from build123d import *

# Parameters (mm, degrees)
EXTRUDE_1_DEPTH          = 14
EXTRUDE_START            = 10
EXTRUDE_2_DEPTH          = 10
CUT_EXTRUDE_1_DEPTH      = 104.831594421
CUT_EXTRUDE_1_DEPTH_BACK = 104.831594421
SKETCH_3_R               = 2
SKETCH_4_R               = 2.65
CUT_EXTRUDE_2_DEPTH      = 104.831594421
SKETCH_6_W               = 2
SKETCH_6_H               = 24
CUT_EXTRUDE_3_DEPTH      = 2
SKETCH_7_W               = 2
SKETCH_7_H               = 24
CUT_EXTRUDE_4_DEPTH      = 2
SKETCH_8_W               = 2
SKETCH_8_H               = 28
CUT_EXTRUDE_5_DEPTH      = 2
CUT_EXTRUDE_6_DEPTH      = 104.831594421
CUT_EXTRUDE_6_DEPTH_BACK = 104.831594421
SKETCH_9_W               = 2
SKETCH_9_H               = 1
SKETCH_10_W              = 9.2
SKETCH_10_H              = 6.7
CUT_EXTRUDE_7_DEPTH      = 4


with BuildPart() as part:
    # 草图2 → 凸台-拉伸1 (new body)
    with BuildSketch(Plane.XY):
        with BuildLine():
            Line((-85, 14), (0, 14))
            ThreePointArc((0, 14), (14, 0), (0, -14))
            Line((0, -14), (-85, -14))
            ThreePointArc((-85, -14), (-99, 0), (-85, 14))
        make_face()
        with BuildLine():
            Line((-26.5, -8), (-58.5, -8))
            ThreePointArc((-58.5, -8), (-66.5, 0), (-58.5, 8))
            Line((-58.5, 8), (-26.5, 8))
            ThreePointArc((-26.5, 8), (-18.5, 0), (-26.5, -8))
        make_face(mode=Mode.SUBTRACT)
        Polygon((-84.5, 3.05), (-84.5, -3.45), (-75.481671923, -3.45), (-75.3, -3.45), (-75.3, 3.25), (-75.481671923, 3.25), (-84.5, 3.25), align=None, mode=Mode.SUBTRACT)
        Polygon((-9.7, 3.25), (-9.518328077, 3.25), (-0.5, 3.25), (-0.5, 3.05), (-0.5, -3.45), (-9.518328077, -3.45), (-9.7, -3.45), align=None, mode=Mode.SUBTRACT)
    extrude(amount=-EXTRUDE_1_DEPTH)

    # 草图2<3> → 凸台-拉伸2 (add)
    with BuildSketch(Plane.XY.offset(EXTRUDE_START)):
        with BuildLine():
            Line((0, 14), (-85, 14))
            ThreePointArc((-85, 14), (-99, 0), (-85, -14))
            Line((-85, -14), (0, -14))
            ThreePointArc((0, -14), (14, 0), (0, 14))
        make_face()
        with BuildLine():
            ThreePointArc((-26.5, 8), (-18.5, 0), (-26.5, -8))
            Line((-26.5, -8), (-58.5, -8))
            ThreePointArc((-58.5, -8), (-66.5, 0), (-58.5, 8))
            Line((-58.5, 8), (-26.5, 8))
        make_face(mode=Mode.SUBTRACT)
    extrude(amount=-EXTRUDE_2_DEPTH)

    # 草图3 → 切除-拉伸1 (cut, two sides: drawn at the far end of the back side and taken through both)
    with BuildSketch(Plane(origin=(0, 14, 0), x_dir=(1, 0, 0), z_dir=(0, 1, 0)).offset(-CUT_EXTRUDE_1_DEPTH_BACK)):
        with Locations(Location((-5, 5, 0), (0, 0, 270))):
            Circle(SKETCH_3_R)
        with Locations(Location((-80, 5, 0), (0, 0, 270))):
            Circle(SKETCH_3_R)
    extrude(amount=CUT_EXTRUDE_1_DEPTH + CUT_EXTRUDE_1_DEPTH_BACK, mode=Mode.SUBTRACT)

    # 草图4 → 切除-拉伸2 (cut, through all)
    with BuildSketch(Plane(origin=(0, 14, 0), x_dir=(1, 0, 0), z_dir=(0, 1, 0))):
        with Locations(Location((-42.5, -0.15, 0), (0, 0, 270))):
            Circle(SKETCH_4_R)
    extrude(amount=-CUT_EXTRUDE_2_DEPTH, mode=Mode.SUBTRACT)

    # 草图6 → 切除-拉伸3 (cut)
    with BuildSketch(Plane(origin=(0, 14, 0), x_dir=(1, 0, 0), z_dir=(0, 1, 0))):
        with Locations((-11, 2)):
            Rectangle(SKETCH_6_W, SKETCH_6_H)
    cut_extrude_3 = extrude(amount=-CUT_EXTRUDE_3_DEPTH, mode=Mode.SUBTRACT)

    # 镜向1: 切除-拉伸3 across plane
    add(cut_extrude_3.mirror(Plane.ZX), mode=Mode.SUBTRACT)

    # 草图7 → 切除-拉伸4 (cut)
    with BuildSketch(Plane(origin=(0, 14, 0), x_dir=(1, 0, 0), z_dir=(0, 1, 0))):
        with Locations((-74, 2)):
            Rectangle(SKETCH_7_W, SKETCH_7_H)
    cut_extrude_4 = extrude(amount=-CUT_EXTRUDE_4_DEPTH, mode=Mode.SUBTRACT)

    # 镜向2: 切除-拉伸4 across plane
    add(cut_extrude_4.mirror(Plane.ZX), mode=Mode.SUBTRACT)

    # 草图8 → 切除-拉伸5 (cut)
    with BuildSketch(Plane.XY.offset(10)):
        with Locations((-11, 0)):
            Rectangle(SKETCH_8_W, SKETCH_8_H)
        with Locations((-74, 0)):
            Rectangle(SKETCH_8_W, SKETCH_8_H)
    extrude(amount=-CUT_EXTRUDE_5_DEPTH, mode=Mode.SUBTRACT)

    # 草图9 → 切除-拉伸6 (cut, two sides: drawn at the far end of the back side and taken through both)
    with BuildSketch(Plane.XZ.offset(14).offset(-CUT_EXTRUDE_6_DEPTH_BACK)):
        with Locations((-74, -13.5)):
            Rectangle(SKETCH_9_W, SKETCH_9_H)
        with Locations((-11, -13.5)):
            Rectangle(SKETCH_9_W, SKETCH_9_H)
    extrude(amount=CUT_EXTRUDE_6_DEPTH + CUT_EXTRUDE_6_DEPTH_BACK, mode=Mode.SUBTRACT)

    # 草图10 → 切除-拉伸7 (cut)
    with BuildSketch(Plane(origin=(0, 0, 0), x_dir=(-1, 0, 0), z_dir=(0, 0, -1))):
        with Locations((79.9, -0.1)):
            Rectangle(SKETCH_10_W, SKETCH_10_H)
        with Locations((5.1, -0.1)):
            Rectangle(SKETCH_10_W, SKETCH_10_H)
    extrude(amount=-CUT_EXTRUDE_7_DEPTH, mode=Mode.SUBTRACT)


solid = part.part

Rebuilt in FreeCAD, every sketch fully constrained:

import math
import FreeCAD as App
import Part
import Sketcher

doc = App.newDocument("Part")
body = doc.addObject("PartDesign::Body", "Body")

sketch1 = body.newObject("Sketcher::SketchObject", "Sketch")
sketch1.AttachmentSupport = (doc.getObject("XY_Plane"), [""])
sketch1.MapMode = "FlatFace"
sketch1.addGeometry([
    Part.LineSegment(App.Vector(0, 14, 0), App.Vector(-85, 14, 0)),
    Part.ArcOfCircle(Part.Circle(App.Vector(-85, 0, 0), App.Vector(0, 0, 1), 14), math.radians(90), math.radians(270)),
    Part.LineSegment(App.Vector(-85, -14, 0), App.Vector(0, -14, 0)),
    Part.ArcOfCircle(Part.Circle(App.Vector(0, 0, 0), App.Vector(0, 0, 1), 14), math.radians(-90), math.radians(90)),
    Part.LineSegment(App.Vector(-10, 3, 0), App.Vector(0, 3, 0)),
    Part.LineSegment(App.Vector(0, 3, 0), App.Vector(0, -3, 0)),
    Part.LineSegment(App.Vector(0, -3, 0), App.Vector(-10, -3, 0)),
    Part.LineSegment(App.Vector(-10, -3, 0), App.Vector(-10, 3, 0)),
    Part.LineSegment(App.Vector(-84, 3, 0), App.Vector(-75, 3, 0)),
    Part.LineSegment(App.Vector(-75, 3, 0), App.Vector(-75, -3, 0)),
    Part.LineSegment(App.Vector(-75, -3, 0), App.Vector(-84, -3, 0)),
    Part.LineSegment(App.Vector(-84, -3, 0), App.Vector(-84, 3, 0)),
    Part.LineSegment(App.Vector(-26, -8, 0), App.Vector(-58, -8, 0)),
    Part.ArcOfCircle(Part.Circle(App.Vector(-58, 0, 0), App.Vector(0, 0, 1), 8), math.radians(90), math.radians(270)),
    Part.LineSegment(App.Vector(-58, 8, 0), App.Vector(-26, 8, 0)),
    Part.ArcOfCircle(Part.Circle(App.Vector(-26, 0, 0), App.Vector(0, 0, 1), 8), math.radians(-90), math.radians(90)),
], False)
sketch1.addConstraint([
    Sketcher.Constraint("Tangent", 0, 2, 1, 1),
    Sketcher.Constraint("Tangent", 1, 2, 2, 1),
    Sketcher.Constraint("Tangent", 2, 2, 3, 1),
    Sketcher.Constraint("Tangent", 3, 2, 0, 1),
    Sketcher.Constraint("Coincident", 4, 2, 5, 1),
    Sketcher.Constraint("Coincident", 5, 2, 6, 1),
    Sketcher.Constraint("Coincident", 6, 2, 7, 1),
    Sketcher.Constraint("Coincident", 7, 2, 4, 1),
    Sketcher.Constraint("Coincident", 8, 2, 9, 1),
    Sketcher.Constraint("Coincident", 9, 2, 10, 1),
    Sketcher.Constraint("Coincident", 10, 2, 11, 1),
    Sketcher.Constraint("Coincident", 11, 2, 8, 1),
    Sketcher.Constraint("Tangent", 12, 2, 13, 2),
    Sketcher.Constraint("Tangent", 13, 1, 14, 1),
    Sketcher.Constraint("Tangent", 14, 2, 15, 2),
    Sketcher.Constraint("Tangent", 15, 1, 12, 1),
    Sketcher.Constraint("Horizontal", 0),
    Sketcher.Constraint("Horizontal", 2),
    Sketcher.Constraint("Horizontal", 4),
    Sketcher.Constraint("Vertical", 5),
    Sketcher.Constraint("Horizontal", 6),
    Sketcher.Constraint("Vertical", 7),
    Sketcher.Constraint("Horizontal", 8),
    Sketcher.Constraint("Vertical", 9),
    Sketcher.Constraint("Horizontal", 10),
    Sketcher.Constraint("Vertical", 11),
    Sketcher.Constraint("Horizontal", 12),
    Sketcher.Constraint("Horizontal", 14),
    Sketcher.Constraint("Coincident", 3, 3, -1, 1),
    Sketcher.Constraint("PointOnObject", 13, 3, -1),
    Sketcher.Constraint("Horizontal", 7, 2, 8, 2),
    Sketcher.Constraint("Horizontal", 6, 2, 9, 2),
    Sketcher.Constraint("Equal", 6, 8),
    Sketcher.Constraint("Radius", 1, 14.0),
    Sketcher.Constraint("Radius", 13, 8.0),
    Sketcher.Constraint("DistanceX", 0, 2, 0, 1, 85.0),
    Sketcher.Constraint("DistanceX", 12, 2, 12, 1, 32.0),
    Sketcher.Constraint("DistanceX", 4, 1, 4, 2, 9.2),
    Sketcher.Constraint("DistanceY", 5, 2, 5, 1, 6.7),
    Sketcher.Constraint("DistanceX", 15, 3, 4, 2, 26.0),
    Sketcher.Constraint("DistanceX", 10, 2, 12, 2, 26.0),
    Sketcher.Constraint("DistanceX", 13, 3, -1, 1, 58.5),
    Sketcher.Constraint("DistanceY", -1, 1, 4, 2, 3.25),
])
pad1 = body.newObject("PartDesign::Pad", "Pad")
pad1.Profile = sketch1
pad1.Length = 14
pad1.Reversed = True

sketch2 = body.newObject("Sketcher::SketchObject", "Sketch001")
sketch2.AttachmentSupport = (doc.getObject("XY_Plane"), [""])
sketch2.MapMode = "FlatFace"
sketch2.AttachmentOffset = App.Placement(App.Vector(0, 0, 10), App.Rotation())
sketch2.addGeometry([
    Part.LineSegment(App.Vector(0, 14, 0), App.Vector(-85, 14, 0)),
    Part.ArcOfCircle(Part.Circle(App.Vector(-85, 0, 0), App.Vector(0, 0, 1), 14), math.radians(90), math.radians(270)),
    Part.LineSegment(App.Vector(-85, -14, 0), App.Vector(0, -14, 0)),
    Part.ArcOfCircle(Part.Circle(App.Vector(0, 0, 0), App.Vector(0, 0, 1), 14), math.radians(-90), math.radians(90)),
    Part.LineSegment(App.Vector(-58, 8, 0), App.Vector(-26, 8, 0)),
    Part.ArcOfCircle(Part.Circle(App.Vector(-26, 0, 0), App.Vector(0, 0, 1), 8), math.radians(-90), math.radians(90)),
    Part.LineSegment(App.Vector(-26, -8, 0), App.Vector(-58, -8, 0)),
    Part.ArcOfCircle(Part.Circle(App.Vector(-58, 0, 0), App.Vector(0, 0, 1), 8), math.radians(90), math.radians(270)),
], False)
sketch2.addConstraint([
    Sketcher.Constraint("Tangent", 0, 2, 1, 1),
    Sketcher.Constraint("Tangent", 1, 2, 2, 1),
    Sketcher.Constraint("Tangent", 2, 2, 3, 1),
    Sketcher.Constraint("Tangent", 3, 2, 0, 1),
    Sketcher.Constraint("Tangent", 4, 2, 5, 2),
    Sketcher.Constraint("Tangent", 5, 1, 6, 1),
    Sketcher.Constraint("Tangent", 6, 2, 7, 2),
    Sketcher.Constraint("Tangent", 7, 1, 4, 1),
    Sketcher.Constraint("Horizontal", 0),
    Sketcher.Constraint("Horizontal", 2),
    Sketcher.Constraint("Horizontal", 4),
    Sketcher.Constraint("Horizontal", 6),
    Sketcher.Constraint("Coincident", 3, 3, -1, 1),
    Sketcher.Constraint("PointOnObject", 5, 3, -1),
    Sketcher.Constraint("Radius", 1, 14.0),
    Sketcher.Constraint("Radius", 5, 8.0),
    Sketcher.Constraint("DistanceX", 0, 2, 0, 1, 85.0),
    Sketcher.Constraint("DistanceX", 4, 1, 4, 2, 32.0),
    Sketcher.Constraint("DistanceX", 5, 3, -1, 1, 26.5),
])
pad2 = body.newObject("PartDesign::Pad", "Pad001")
pad2.Profile = sketch2
pad2.Length = 10
pad2.Reversed = True

sketch3 = body.newObject("Sketcher::SketchObject", "Sketch002")
sketch3.AttachmentSupport = (doc.getObject("XZ_Plane"), [""])
sketch3.MapMode = "FlatFace"
sketch3.AttachmentOffset = App.Placement(App.Vector(0, 0, -14), App.Rotation())
sketch3.addGeometry([
    Part.Circle(App.Vector(-5, -5, 0), App.Vector(0, 0, 1), 2),
    Part.Circle(App.Vector(-80, -5, 0), App.Vector(0, 0, 1), 2),
], False)
sketch3.addConstraint([
    Sketcher.Constraint("Equal", 0, 1),
    Sketcher.Constraint("Horizontal", 0, 3, 1, 3),
    Sketcher.Constraint("Diameter", 0, 4.0),
    Sketcher.Constraint("DistanceX", 0, 3, -1, 1, 5.0),
    Sketcher.Constraint("DistanceY", 0, 3, -1, 1, 5.0),
    Sketcher.Constraint("DistanceX", 1, 3, -1, 1, 80.0),
])
pocket1 = body.newObject("PartDesign::Pocket", "Pocket")
pocket1.Profile = sketch3
pocket1.Type = "ThroughAll"
pocket1.Midplane = True

sketch4 = body.newObject("Sketcher::SketchObject", "Sketch003")
sketch4.AttachmentSupport = (doc.getObject("XZ_Plane"), [""])
sketch4.MapMode = "FlatFace"
sketch4.AttachmentOffset = App.Placement(App.Vector(0, 0, -14), App.Rotation())
sketch4.addGeometry(Part.Circle(App.Vector(-42.5, 0.1, 0), App.Vector(0, 0, 1), 2.6), False)
sketch4.addConstraint([
    Sketcher.Constraint("Diameter", 0, 5.3),
    Sketcher.Constraint("DistanceX", 0, 3, -1, 1, 42.5),
    Sketcher.Constraint("DistanceY", -1, 1, 0, 3, 0.15),
])
pocket2 = body.newObject("PartDesign::Pocket", "Pocket001")
pocket2.Profile = sketch4
pocket2.Type = "ThroughAll"
pocket2.Reversed = True

sketch5 = body.newObject("Sketcher::SketchObject", "Sketch004")
sketch5.AttachmentSupport = (doc.getObject("XZ_Plane"), [""])
sketch5.MapMode = "FlatFace"
sketch5.AttachmentOffset = App.Placement(App.Vector(0, 0, -14), App.Rotation())
sketch5.addGeometry([
    Part.LineSegment(App.Vector(-12, -14, 0), App.Vector(-12, 10, 0)),
    Part.LineSegment(App.Vector(-12, 10, 0), App.Vector(-10, 10, 0)),
    Part.LineSegment(App.Vector(-10, 10, 0), App.Vector(-10, -14, 0)),
    Part.LineSegment(App.Vector(-10, -14, 0), App.Vector(-12, -14, 0)),
], False)
sketch5.addConstraint([
    Sketcher.Constraint("Coincident", 0, 2, 1, 1),
    Sketcher.Constraint("Coincident", 1, 2, 2, 1),
    Sketcher.Constraint("Coincident", 2, 2, 3, 1),
    Sketcher.Constraint("Coincident", 3, 2, 0, 1),
    Sketcher.Constraint("Vertical", 0),
    Sketcher.Constraint("Horizontal", 1),
    Sketcher.Constraint("Vertical", 2),
    Sketcher.Constraint("Horizontal", 3),
    Sketcher.Constraint("DistanceX", 1, 1, 1, 2, 2.0),
    Sketcher.Constraint("DistanceY", 0, 1, 0, 2, 24.0),
    Sketcher.Constraint("DistanceX", 0, 2, -1, 1, 12.0),
    Sketcher.Constraint("DistanceY", -1, 1, 0, 2, 10.0),
])
pocket3 = body.newObject("PartDesign::Pocket", "Pocket002")
pocket3.Profile = sketch5
pocket3.Length = 2
pocket3.Reversed = True
doc.recompute()

mirrored = body.newObject("PartDesign::Mirrored", "Mirrored")
mirrored.Originals = [pocket3]
mirrored.MirrorPlane = (doc.getObject("XZ_Plane"), [""])
body.Tip = mirrored

sketch6 = body.newObject("Sketcher::SketchObject", "Sketch005")
sketch6.AttachmentSupport = (doc.getObject("XZ_Plane"), [""])
sketch6.MapMode = "FlatFace"
sketch6.AttachmentOffset = App.Placement(App.Vector(0, 0, -14), App.Rotation())
sketch6.addGeometry([
    Part.LineSegment(App.Vector(-75, -14, 0), App.Vector(-75, 10, 0)),
    Part.LineSegment(App.Vector(-75, 10, 0), App.Vector(-73, 10, 0)),
    Part.LineSegment(App.Vector(-73, 10, 0), App.Vector(-73, -14, 0)),
    Part.LineSegment(App.Vector(-73, -14, 0), App.Vector(-75, -14, 0)),
], False)
sketch6.addConstraint([
    Sketcher.Constraint("Coincident", 0, 2, 1, 1),
    Sketcher.Constraint("Coincident", 1, 2, 2, 1),
    Sketcher.Constraint("Coincident", 2, 2, 3, 1),
    Sketcher.Constraint("Coincident", 3, 2, 0, 1),
    Sketcher.Constraint("Vertical", 0),
    Sketcher.Constraint("Horizontal", 1),
    Sketcher.Constraint("Vertical", 2),
    Sketcher.Constraint("Horizontal", 3),
    Sketcher.Constraint("DistanceX", 1, 1, 1, 2, 2.0),
    Sketcher.Constraint("DistanceY", 0, 1, 0, 2, 24.0),
    Sketcher.Constraint("DistanceX", 0, 2, -1, 1, 75.0),
    Sketcher.Constraint("DistanceY", -1, 1, 0, 2, 10.0),
])
pocket4 = body.newObject("PartDesign::Pocket", "Pocket003")
pocket4.Profile = sketch6
pocket4.Length = 2
pocket4.Reversed = True
doc.recompute()

mirrored2 = body.newObject("PartDesign::Mirrored", "Mirrored001")
mirrored2.Originals = [pocket4]
mirrored2.MirrorPlane = (doc.getObject("XZ_Plane"), [""])
body.Tip = mirrored2

sketch7 = body.newObject("Sketcher::SketchObject", "Sketch006")
sketch7.AttachmentSupport = (doc.getObject("XY_Plane"), [""])
sketch7.MapMode = "FlatFace"
sketch7.AttachmentOffset = App.Placement(App.Vector(0, 0, 10), App.Rotation())
sketch7.addGeometry([
    Part.LineSegment(App.Vector(-12, 14, 0), App.Vector(-12, -14, 0)),
    Part.LineSegment(App.Vector(-12, -14, 0), App.Vector(-10, -14, 0)),
    Part.LineSegment(App.Vector(-10, -14, 0), App.Vector(-10, 14, 0)),
    Part.LineSegment(App.Vector(-10, 14, 0), App.Vector(-12, 14, 0)),
    Part.LineSegment(App.Vector(-75, 14, 0), App.Vector(-75, -14, 0)),
    Part.LineSegment(App.Vector(-75, -14, 0), App.Vector(-73, -14, 0)),
    Part.LineSegment(App.Vector(-73, -14, 0), App.Vector(-73, 14, 0)),
    Part.LineSegment(App.Vector(-73, 14, 0), App.Vector(-75, 14, 0)),
], False)
sketch7.addConstraint([
    Sketcher.Constraint("Coincident", 0, 2, 1, 1),
    Sketcher.Constraint("Coincident", 1, 2, 2, 1),
    Sketcher.Constraint("Coincident", 2, 2, 3, 1),
    Sketcher.Constraint("Coincident", 3, 2, 0, 1),
    Sketcher.Constraint("Coincident", 4, 2, 5, 1),
    Sketcher.Constraint("Coincident", 5, 2, 6, 1),
    Sketcher.Constraint("Coincident", 6, 2, 7, 1),
    Sketcher.Constraint("Coincident", 7, 2, 4, 1),
    Sketcher.Constraint("Vertical", 0),
    Sketcher.Constraint("Horizontal", 1),
    Sketcher.Constraint("Vertical", 2),
    Sketcher.Constraint("Horizontal", 3),
    Sketcher.Constraint("Vertical", 4),
    Sketcher.Constraint("Horizontal", 5),
    Sketcher.Constraint("Vertical", 6),
    Sketcher.Constraint("Horizontal", 7),
    Sketcher.Constraint("Horizontal", 1, 2, 4, 2),
    Sketcher.Constraint("Horizontal", 3, 2, 6, 2),
    Sketcher.Constraint("Equal", 3, 5),
    Sketcher.Constraint("DistanceX", 1, 1, 1, 2, 2.0),
    Sketcher.Constraint("DistanceY", 0, 2, 0, 1, 28.0),
    Sketcher.Constraint("DistanceX", 0, 2, -1, 1, 12.0),
    Sketcher.Constraint("DistanceY", 0, 2, -1, 1, 14.0),
    Sketcher.Constraint("DistanceX", 4, 2, -1, 1, 75.0),
])
pocket5 = body.newObject("PartDesign::Pocket", "Pocket004")
pocket5.Profile = sketch7
pocket5.Length = 2

sketch8 = body.newObject("Sketcher::SketchObject", "Sketch007")
sketch8.AttachmentSupport = (doc.getObject("XZ_Plane"), [""])
sketch8.MapMode = "FlatFace"
sketch8.AttachmentOffset = App.Placement(App.Vector(0, 0, 14), App.Rotation())
sketch8.addGeometry([
    Part.LineSegment(App.Vector(-75, -13, 0), App.Vector(-75, -14, 0)),
    Part.LineSegment(App.Vector(-75, -14, 0), App.Vector(-73, -14, 0)),
    Part.LineSegment(App.Vector(-73, -14, 0), App.Vector(-73, -13, 0)),
    Part.LineSegment(App.Vector(-73, -13, 0), App.Vector(-75, -13, 0)),
    Part.LineSegment(App.Vector(-12, -13, 0), App.Vector(-12, -14, 0)),
    Part.LineSegment(App.Vector(-12, -14, 0), App.Vector(-10, -14, 0)),
    Part.LineSegment(App.Vector(-10, -14, 0), App.Vector(-10, -13, 0)),
    Part.LineSegment(App.Vector(-10, -13, 0), App.Vector(-12, -13, 0)),
], False)
sketch8.addConstraint([
    Sketcher.Constraint("Coincident", 0, 2, 1, 1),
    Sketcher.Constraint("Coincident", 1, 2, 2, 1),
    Sketcher.Constraint("Coincident", 2, 2, 3, 1),
    Sketcher.Constraint("Coincident", 3, 2, 0, 1),
    Sketcher.Constraint("Coincident", 4, 2, 5, 1),
    Sketcher.Constraint("Coincident", 5, 2, 6, 1),
    Sketcher.Constraint("Coincident", 6, 2, 7, 1),
    Sketcher.Constraint("Coincident", 7, 2, 4, 1),
    Sketcher.Constraint("Vertical", 0),
    Sketcher.Constraint("Horizontal", 1),
    Sketcher.Constraint("Vertical", 2),
    Sketcher.Constraint("Horizontal", 3),
    Sketcher.Constraint("Vertical", 4),
    Sketcher.Constraint("Horizontal", 5),
    Sketcher.Constraint("Vertical", 6),
    Sketcher.Constraint("Horizontal", 7),
    Sketcher.Constraint("Horizontal", 1, 2, 4, 2),
    Sketcher.Constraint("Horizontal", 3, 2, 6, 2),
    Sketcher.Constraint("Equal", 3, 5),
    Sketcher.Constraint("DistanceX", 1, 1, 1, 2, 2.0),
    Sketcher.Constraint("DistanceY", 0, 2, 0, 1, 1.0),
    Sketcher.Constraint("DistanceX", 0, 2, -1, 1, 75.0),
    Sketcher.Constraint("DistanceY", 0, 2, -1, 1, 14.0),
    Sketcher.Constraint("DistanceX", 4, 2, -1, 1, 12.0),
])
pocket6 = body.newObject("PartDesign::Pocket", "Pocket005")
pocket6.Profile = sketch8
pocket6.Type = "ThroughAll"
pocket6.Midplane = True

sketch9 = body.newObject("Sketcher::SketchObject", "Sketch008")
sketch9.AttachmentSupport = (doc.getObject("XY_Plane"), [""])
sketch9.MapMode = "FlatFace"
sketch9.addGeometry([
    Part.LineSegment(App.Vector(-75, 3, 0), App.Vector(-75, -3, 0)),
    Part.LineSegment(App.Vector(-75, -3, 0), App.Vector(-84, -3, 0)),
    Part.LineSegment(App.Vector(-84, -3, 0), App.Vector(-84, 3, 0)),
    Part.LineSegment(App.Vector(-84, 3, 0), App.Vector(-75, 3, 0)),
    Part.LineSegment(App.Vector(0, 3, 0), App.Vector(0, -3, 0)),
    Part.LineSegment(App.Vector(0, -3, 0), App.Vector(-10, -3, 0)),
    Part.LineSegment(App.Vector(-10, -3, 0), App.Vector(-10, 3, 0)),
    Part.LineSegment(App.Vector(-10, 3, 0), App.Vector(0, 3, 0)),
], False)
sketch9.addConstraint([
    Sketcher.Constraint("Coincident", 0, 2, 1, 1),
    Sketcher.Constraint("Coincident", 1, 2, 2, 1),
    Sketcher.Constraint("Coincident", 2, 2, 3, 1),
    Sketcher.Constraint("Coincident", 3, 2, 0, 1),
    Sketcher.Constraint("Coincident", 4, 2, 5, 1),
    Sketcher.Constraint("Coincident", 5, 2, 6, 1),
    Sketcher.Constraint("Coincident", 6, 2, 7, 1),
    Sketcher.Constraint("Coincident", 7, 2, 4, 1),
    Sketcher.Constraint("Vertical", 0),
    Sketcher.Constraint("Horizontal", 1),
    Sketcher.Constraint("Vertical", 2),
    Sketcher.Constraint("Horizontal", 3),
    Sketcher.Constraint("Vertical", 4),
    Sketcher.Constraint("Horizontal", 5),
    Sketcher.Constraint("Vertical", 6),
    Sketcher.Constraint("Horizontal", 7),
    Sketcher.Constraint("Horizontal", 1, 2, 4, 2),
    Sketcher.Constraint("Horizontal", 3, 2, 6, 2),
    Sketcher.Constraint("Equal", 3, 5),
    Sketcher.Constraint("DistanceX", 1, 2, 1, 1, 9.2),
    Sketcher.Constraint("DistanceY", 0, 2, 0, 1, 6.7),
    Sketcher.Constraint("DistanceX", 1, 2, 4, 2, 84.0),
    Sketcher.Constraint("DistanceX", 0, 2, -1, 1, 75.3),
    Sketcher.Constraint("DistanceY", 0, 2, -1, 1, 3.45),
])
pocket7 = body.newObject("PartDesign::Pocket", "Pocket006")
pocket7.Profile = sketch9
pocket7.Length = 4
pocket7.Reversed = True

doc.recompute()
